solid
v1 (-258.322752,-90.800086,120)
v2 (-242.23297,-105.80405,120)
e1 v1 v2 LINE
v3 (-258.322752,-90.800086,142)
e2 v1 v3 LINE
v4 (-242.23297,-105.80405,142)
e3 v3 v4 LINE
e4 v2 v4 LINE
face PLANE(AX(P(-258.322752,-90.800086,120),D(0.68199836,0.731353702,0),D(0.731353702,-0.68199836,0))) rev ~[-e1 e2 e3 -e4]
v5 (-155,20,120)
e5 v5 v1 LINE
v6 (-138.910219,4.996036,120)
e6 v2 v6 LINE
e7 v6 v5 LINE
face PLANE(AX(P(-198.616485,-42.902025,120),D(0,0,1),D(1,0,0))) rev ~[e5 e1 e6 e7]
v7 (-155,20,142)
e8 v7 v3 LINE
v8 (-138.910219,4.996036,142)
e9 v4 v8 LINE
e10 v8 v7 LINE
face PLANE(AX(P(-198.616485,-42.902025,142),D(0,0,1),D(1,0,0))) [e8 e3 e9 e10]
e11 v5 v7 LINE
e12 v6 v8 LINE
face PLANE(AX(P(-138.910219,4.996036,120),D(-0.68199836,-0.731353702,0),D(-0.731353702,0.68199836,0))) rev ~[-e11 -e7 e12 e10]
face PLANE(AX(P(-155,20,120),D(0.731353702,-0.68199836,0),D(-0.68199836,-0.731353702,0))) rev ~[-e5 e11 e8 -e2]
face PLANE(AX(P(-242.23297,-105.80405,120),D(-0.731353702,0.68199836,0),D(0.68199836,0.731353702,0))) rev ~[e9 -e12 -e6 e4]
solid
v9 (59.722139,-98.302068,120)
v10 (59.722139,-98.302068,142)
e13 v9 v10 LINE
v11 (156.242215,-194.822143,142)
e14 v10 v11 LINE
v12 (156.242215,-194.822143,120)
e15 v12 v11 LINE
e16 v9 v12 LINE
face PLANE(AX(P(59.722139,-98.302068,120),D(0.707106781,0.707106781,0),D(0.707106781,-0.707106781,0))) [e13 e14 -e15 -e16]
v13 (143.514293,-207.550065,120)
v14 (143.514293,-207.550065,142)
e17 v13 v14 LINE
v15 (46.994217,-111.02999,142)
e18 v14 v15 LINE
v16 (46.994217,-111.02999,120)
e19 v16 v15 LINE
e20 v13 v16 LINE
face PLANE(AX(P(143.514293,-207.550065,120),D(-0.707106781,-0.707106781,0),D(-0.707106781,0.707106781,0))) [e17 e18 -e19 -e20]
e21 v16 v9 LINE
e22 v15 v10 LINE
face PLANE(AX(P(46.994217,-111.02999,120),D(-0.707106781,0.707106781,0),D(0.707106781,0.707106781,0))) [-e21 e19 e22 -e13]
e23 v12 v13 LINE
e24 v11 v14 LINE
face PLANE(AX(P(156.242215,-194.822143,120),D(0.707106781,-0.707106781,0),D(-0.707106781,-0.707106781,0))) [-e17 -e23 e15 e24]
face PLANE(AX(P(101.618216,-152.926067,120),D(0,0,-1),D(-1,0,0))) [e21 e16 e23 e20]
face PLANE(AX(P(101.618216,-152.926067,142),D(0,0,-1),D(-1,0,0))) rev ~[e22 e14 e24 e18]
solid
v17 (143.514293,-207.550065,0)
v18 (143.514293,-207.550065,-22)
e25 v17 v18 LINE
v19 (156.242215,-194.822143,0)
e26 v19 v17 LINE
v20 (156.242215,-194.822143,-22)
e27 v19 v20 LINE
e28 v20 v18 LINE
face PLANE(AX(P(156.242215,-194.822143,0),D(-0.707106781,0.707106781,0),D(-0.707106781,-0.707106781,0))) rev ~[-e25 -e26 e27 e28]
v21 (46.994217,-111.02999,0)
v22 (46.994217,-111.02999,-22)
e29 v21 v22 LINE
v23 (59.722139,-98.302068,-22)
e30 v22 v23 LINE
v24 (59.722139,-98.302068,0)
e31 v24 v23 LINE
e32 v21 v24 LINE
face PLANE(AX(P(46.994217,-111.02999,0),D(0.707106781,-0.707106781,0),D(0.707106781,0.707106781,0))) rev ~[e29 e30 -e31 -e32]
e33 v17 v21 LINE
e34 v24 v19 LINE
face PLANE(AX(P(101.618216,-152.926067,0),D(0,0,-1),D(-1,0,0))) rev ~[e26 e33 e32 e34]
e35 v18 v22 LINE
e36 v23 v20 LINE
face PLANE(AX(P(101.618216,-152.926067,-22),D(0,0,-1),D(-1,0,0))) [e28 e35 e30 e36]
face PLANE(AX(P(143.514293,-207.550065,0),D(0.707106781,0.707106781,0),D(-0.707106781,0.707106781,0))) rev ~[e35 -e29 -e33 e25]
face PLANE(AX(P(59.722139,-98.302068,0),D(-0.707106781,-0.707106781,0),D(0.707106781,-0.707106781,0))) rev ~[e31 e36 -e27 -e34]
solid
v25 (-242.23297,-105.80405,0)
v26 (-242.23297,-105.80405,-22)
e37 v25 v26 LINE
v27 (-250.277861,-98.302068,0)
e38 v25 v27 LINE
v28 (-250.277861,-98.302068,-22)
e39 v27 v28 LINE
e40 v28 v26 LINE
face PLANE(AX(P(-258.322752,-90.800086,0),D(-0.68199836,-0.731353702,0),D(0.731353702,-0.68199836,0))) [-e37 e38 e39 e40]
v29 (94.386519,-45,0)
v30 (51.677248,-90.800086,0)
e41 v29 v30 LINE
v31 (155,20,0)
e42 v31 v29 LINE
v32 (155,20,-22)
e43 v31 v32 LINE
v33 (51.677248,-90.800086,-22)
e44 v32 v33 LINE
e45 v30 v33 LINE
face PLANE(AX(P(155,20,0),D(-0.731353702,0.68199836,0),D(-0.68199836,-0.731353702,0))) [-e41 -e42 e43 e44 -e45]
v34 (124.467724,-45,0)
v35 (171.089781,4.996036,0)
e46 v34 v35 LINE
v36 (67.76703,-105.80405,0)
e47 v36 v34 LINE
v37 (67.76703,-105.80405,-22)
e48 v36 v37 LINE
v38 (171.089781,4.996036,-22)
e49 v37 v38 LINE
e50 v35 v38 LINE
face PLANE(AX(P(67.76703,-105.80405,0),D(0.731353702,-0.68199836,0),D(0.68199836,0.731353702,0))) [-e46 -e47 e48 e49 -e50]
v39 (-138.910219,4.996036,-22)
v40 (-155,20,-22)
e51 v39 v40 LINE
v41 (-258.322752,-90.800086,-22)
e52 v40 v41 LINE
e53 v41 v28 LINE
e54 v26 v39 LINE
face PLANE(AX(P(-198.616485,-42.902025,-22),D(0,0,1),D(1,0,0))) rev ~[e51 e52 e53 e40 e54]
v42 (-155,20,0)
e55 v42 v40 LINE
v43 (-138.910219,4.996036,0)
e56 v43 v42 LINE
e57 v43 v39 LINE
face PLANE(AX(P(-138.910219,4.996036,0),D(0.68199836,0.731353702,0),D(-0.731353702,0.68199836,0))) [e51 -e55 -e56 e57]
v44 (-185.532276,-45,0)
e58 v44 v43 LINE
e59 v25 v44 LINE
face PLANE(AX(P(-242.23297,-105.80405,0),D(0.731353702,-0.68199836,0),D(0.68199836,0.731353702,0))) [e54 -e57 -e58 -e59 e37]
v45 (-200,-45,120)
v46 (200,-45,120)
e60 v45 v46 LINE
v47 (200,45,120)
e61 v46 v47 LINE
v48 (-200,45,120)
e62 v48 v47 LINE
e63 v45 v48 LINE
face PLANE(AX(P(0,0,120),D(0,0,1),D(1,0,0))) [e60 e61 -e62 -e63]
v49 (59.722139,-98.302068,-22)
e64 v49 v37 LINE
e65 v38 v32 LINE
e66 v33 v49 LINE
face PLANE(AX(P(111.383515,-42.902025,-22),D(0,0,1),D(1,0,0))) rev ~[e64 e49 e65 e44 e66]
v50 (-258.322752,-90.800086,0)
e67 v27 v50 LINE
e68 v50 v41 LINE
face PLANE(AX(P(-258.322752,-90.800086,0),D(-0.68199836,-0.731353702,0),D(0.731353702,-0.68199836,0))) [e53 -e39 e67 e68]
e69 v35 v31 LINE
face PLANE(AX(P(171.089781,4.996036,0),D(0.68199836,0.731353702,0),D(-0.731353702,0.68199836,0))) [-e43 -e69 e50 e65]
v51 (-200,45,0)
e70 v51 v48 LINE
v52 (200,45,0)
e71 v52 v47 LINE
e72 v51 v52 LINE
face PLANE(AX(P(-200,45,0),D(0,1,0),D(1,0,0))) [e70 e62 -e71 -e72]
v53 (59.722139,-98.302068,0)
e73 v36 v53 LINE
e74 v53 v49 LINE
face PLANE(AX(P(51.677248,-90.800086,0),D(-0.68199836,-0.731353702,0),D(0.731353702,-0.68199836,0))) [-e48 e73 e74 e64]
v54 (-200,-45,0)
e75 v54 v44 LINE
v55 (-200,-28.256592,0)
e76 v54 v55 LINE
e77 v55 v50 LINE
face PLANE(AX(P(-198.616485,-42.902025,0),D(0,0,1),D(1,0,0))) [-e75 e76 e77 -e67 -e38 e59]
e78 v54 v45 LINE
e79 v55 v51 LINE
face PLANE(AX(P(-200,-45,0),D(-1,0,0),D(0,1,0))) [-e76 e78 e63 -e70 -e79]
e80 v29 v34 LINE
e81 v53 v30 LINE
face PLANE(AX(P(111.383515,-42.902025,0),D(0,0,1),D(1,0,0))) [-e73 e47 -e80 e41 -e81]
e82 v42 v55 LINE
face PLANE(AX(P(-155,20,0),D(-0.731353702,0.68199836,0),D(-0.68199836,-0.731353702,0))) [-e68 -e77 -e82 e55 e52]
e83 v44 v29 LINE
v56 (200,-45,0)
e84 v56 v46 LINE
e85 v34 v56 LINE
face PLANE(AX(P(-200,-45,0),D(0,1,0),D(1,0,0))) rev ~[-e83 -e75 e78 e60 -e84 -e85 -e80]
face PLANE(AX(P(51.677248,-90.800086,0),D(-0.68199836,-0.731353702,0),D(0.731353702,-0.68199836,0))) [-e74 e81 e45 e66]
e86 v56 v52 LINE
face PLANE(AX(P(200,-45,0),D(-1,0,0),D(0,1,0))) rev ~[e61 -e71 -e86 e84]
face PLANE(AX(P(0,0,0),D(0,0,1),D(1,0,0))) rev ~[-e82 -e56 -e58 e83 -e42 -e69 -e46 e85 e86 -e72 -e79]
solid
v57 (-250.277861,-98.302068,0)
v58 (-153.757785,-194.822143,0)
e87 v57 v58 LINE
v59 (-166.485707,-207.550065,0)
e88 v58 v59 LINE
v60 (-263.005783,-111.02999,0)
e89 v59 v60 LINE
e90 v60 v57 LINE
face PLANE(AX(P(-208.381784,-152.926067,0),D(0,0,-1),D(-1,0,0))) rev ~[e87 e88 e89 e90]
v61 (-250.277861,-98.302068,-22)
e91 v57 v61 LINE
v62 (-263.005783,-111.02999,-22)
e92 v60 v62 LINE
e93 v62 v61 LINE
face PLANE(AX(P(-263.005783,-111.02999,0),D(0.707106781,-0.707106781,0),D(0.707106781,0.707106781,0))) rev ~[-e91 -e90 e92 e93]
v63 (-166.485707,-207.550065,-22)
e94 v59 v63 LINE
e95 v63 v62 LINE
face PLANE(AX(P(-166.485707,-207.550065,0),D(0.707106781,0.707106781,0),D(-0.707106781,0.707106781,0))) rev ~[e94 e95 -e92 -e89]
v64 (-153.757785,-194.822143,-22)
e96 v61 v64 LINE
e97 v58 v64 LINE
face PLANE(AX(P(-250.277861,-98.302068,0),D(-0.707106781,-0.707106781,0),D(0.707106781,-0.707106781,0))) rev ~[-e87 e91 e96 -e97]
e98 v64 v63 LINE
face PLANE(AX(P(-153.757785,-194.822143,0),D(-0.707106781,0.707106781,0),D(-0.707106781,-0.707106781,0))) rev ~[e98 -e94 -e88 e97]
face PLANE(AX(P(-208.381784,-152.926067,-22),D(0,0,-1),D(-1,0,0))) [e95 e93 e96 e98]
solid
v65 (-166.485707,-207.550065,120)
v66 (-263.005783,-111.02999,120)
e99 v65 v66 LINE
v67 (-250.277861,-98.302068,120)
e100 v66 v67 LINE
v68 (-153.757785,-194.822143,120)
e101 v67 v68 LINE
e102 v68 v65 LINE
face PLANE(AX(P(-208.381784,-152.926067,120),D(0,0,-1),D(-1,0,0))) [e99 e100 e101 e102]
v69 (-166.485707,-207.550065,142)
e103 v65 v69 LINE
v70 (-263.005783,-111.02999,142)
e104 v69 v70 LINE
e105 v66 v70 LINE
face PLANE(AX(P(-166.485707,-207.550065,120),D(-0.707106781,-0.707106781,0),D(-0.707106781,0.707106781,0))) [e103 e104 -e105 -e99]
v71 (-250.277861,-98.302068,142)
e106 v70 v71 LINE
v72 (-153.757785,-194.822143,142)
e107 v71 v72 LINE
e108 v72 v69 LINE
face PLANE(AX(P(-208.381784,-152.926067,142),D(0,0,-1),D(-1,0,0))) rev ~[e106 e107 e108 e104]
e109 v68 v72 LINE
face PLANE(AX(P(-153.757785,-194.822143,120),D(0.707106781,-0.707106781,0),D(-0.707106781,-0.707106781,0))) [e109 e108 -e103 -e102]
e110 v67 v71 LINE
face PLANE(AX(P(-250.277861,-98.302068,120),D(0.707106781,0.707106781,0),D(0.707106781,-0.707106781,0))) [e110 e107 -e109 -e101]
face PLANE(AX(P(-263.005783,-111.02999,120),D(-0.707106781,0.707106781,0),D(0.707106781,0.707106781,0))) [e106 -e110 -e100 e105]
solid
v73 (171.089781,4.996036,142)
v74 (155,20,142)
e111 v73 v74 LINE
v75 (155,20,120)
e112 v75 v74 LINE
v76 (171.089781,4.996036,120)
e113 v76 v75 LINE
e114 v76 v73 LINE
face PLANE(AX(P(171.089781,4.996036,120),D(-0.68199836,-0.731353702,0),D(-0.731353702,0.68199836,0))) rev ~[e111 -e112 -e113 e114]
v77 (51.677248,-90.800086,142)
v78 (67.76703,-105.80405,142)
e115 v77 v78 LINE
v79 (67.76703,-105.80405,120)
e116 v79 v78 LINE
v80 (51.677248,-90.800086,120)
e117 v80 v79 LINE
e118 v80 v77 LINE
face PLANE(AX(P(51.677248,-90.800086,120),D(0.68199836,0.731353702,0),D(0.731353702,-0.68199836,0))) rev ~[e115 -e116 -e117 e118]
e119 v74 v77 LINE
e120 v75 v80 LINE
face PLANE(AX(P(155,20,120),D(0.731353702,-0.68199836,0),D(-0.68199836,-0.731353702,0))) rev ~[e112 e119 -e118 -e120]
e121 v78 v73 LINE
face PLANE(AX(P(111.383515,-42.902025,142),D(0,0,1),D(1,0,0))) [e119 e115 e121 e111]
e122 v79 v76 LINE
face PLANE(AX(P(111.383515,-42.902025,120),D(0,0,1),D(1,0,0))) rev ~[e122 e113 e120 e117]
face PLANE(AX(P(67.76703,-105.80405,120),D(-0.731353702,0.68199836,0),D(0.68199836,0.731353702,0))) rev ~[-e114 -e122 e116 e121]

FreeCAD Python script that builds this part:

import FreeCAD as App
import Part
import Sketcher
from FreeCAD import Vector
Q = App.Units.Quantity


def add_polygon(sketch, points):
    """Adds a closed chain of lines whose ends are joined by coincident constraints."""
    first, n = sketch.GeometryCount, len(points)
    for a, b in zip(points, points[1:] + points[:1]):
        sketch.addGeometry(Part.LineSegment(App.Vector(*a, 0), App.Vector(*b, 0)), False)
    for i in range(n):
        sketch.addConstraint(Sketcher.Constraint("Coincident", first + i, 2, first + (i + 1) % n, 1))

doc = App.newDocument("Part")
params = doc.addObject("Spreadsheet::Sheet", "Params")
for row, (alias, value) in enumerate([
    ("sketch1_width", "400 mm"),
    ("sketch1_height", "90 mm"),
    ("pad1_length", "120 mm"),
    ("sketch2_length", "11 mm"),
    ("sketch2_length2", "18 mm"),
    ("sketch2_length3", "151.5 mm"),
    ("sketch2_length4", "136.5 mm"),
    ("pad2_length", "22 mm"),
    ("sketch3_length", "22 mm"),
    ("sketch3_length2", "151.5 mm"),
    ("pad3_length", "22 mm"),
    ("sketch4_length", "22 mm"),
    ("sketch4_length2", "151.5 mm"),
    ("pad4_length", "22 mm"),
    ("sketch5_length", "18 mm"),
    ("sketch5_length2", "136.5 mm"),
    ("pad5_length", "22 mm"),
    ("sketch6_length", "18 mm"),
    ("sketch6_length2", "136.5 mm"),
    ("pad6_length", "22 mm"),
], start=1):
    params.set(f"A{row}", alias)
    params.set(f"B{row}", "=" + value)
    params.setAlias(f"B{row}", alias)

body = doc.addObject("PartDesign::Body", "Body")
body.AllowCompound = True

# Sketch on XY plane
sketch1 = body.newObject("Sketcher::SketchObject", "Sketch")
sketch1.AttachmentSupport = (doc.getObject("XY_Plane"), [""])
sketch1.MapMode = "FlatFace"
add_polygon(sketch1, [(-200, 45), (-200, -45), (200, -45), (200, 45)])  # lines 0-3
sketch1.addConstraint([
    Sketcher.Constraint("Vertical", 0),
    Sketcher.Constraint("Horizontal", 1),
    Sketcher.Constraint("Vertical", 2),
    Sketcher.Constraint("Horizontal", 3),
    Sketcher.Constraint("Symmetric", 0, 2, 2, 2, -1, 1),
    Sketcher.Constraint("DistanceX", 1, 1, 1, 2, Q("400 mm")),
    Sketcher.Constraint("DistanceY", 0, 2, 0, 1, Q("90 mm")),
])
sketch1.setExpression("Constraints[9]", "Params.sketch1_width")
sketch1.setExpression("Constraints[10]", "Params.sketch1_height")
pad1 = body.newObject("PartDesign::Pad", "Pad")
pad1.Profile = sketch1
pad1.setExpression("Length", "Params.pad1_length")

# Sketch on XY plane
sketch2 = body.newObject("Sketcher::SketchObject", "Sketch001")
sketch2.AttachmentSupport = (doc.getObject("XY_Plane"), [""])
sketch2.MapMode = "FlatFace"
add_polygon(sketch2, [(-155, 20), (-258, -91), (-250, -98), (-242, -106), (-139, 5)])  # lines 0-4
add_polygon(sketch2, [(155, 20), (52, -91), (60, -98), (68, -106), (171, 5)])  # lines 5-9
add_polygon(sketch2, [(-154, -195), (-250, -98), (-263, -111), (-166, -208)])  # lines 10-13
add_polygon(sketch2, [(156, -195), (60, -98), (47, -111), (144, -208)])  # lines 14-17
sketch2.addConstraint([
    Sketcher.Constraint("Coincident", 10, 2, 1, 2),
    Sketcher.Constraint("Coincident", 14, 2, 6, 2),
    Sketcher.Constraint("Symmetric", 4, 2, 9, 2, -2),
    Sketcher.Constraint("Perpendicular", 0, 1),
    Sketcher.Constraint("Parallel", 1, 2),
    Sketcher.Constraint("Perpendicular", 2, 3),
    Sketcher.Constraint("Perpendicular", 3, 4),
    Sketcher.Constraint("Perpendicular", 4, 5),
    Sketcher.Constraint("Perpendicular", 5, 6),
    Sketcher.Constraint("Parallel", 6, 7),
    Sketcher.Constraint("Perpendicular", 7, 8),
    Sketcher.Constraint("Perpendicular", 8, 9),
    Sketcher.Constraint("Perpendicular", 10, 11),
    Sketcher.Constraint("Perpendicular", 11, 12),
    Sketcher.Constraint("Perpendicular", 12, 13),
    Sketcher.Constraint("Perpendicular", 13, 14),
    Sketcher.Constraint("Perpendicular", 14, 15),
    Sketcher.Constraint("Perpendicular", 15, 16),
    Sketcher.Constraint("Perpendicular", 16, 17),
    Sketcher.Constraint("Horizontal", 0, 2, 5, 2),
    Sketcher.Constraint("Horizontal", 1, 2, 6, 2),
    Sketcher.Constraint("Horizontal", 2, 2, 7, 2),
    Sketcher.Constraint("Horizontal", 11, 2, 15, 2),
    Sketcher.Constraint("Horizontal", 12, 2, 16, 2),
    Sketcher.Constraint("Equal", 1, 2),
    Sketcher.Constraint("Angle", 0, Q("-133 deg")),
    Sketcher.Constraint("Angle", 10, Q("135 deg")),
    Sketcher.Constraint("Distance", 1, Q("11 mm")),
    Sketcher.Constraint("Distance", 11, Q("18 mm")),
    Sketcher.Constraint("DistanceX", 4, 2, -1, 1, Q("155 mm")),
    Sketcher.Constraint("DistanceY", -1, 1, 4, 2, Q("20 mm")),
    Sketcher.Constraint("Distance", 0, Q("151.5 mm")),
    Sketcher.Constraint("Distance", 10, Q("136.5 mm")),
])
sketch2.setExpression("Constraints[45]", "Params.sketch2_length")
sketch2.setExpression("Constraints[46]", "Params.sketch2_length2")
sketch2.setExpression("Constraints[49]", "Params.sketch2_length3")
sketch2.setExpression("Constraints[50]", "Params.sketch2_length4")
pad2 = body.newObject("PartDesign::Pad", "Pad001")
pad2.Profile = sketch2
pad2.setExpression("Length", "Params.pad2_length")
pad2.Reversed = True
body2 = doc.addObject("PartDesign::Body", "Body001")

# Sketch on XY plane
sketch3 = body2.newObject("Sketcher::SketchObject", "Sketch002")
sketch3.AttachmentSupport = (doc.getObject("XY_Plane001"), [""])
sketch3.MapMode = "FlatFace"
sketch3.AttachmentOffset = App.Placement(Vector(0, 0, 120), App.Rotation())
add_polygon(sketch3, [(-155, 20), (-258, -91), (-242, -106), (-139, 5)])  # lines 0-3
sketch3.addConstraint([
    Sketcher.Constraint("Perpendicular", 0, 1),
    Sketcher.Constraint("Perpendicular", 1, 2),
    Sketcher.Constraint("Perpendicular", 2, 3),
    Sketcher.Constraint("Angle", 0, Q("-133 deg")),
    Sketcher.Constraint("Distance", 1, Q("22 mm")),
    Sketcher.Constraint("DistanceX", 3, 2, -1, 1, Q("155 mm")),
    Sketcher.Constraint("DistanceY", -1, 1, 3, 2, Q("20 mm")),
    Sketcher.Constraint("Distance", 0, Q("151.5 mm")),
])
sketch3.setExpression("Constraints[8]", "Params.sketch3_length")
sketch3.setExpression("Constraints[11]", "Params.sketch3_length2")
pad3 = body2.newObject("PartDesign::Pad", "Pad002")
pad3.Profile = sketch3
pad3.setExpression("Length", "Params.pad3_length")
body3 = doc.addObject("PartDesign::Body", "Body002")

# Sketch on XY plane
sketch4 = body3.newObject("Sketcher::SketchObject", "Sketch003")
sketch4.AttachmentSupport = (doc.getObject("XY_Plane002"), [""])
sketch4.MapMode = "FlatFace"
sketch4.AttachmentOffset = App.Placement(Vector(0, 0, 120), App.Rotation())
add_polygon(sketch4, [(155, 20), (52, -91), (68, -106), (171, 5)])  # lines 0-3
sketch4.addConstraint([
    Sketcher.Constraint("Perpendicular", 0, 1),
    Sketcher.Constraint("Perpendicular", 1, 2),
    Sketcher.Constraint("Perpendicular", 2, 3),
    Sketcher.Constraint("Angle", 0, Q("-133 deg")),
    Sketcher.Constraint("Distance", 1, Q("22 mm")),
    Sketcher.Constraint("DistanceX", -1, 1, 3, 2, Q("155 mm")),
    Sketcher.Constraint("DistanceY", -1, 1, 3, 2, Q("20 mm")),
    Sketcher.Constraint("Distance", 0, Q("151.5 mm")),
])
sketch4.setExpression("Constraints[8]", "Params.sketch4_length")
sketch4.setExpression("Constraints[11]", "Params.sketch4_length2")
pad4 = body3.newObject("PartDesign::Pad", "Pad003")
pad4.Profile = sketch4
pad4.setExpression("Length", "Params.pad4_length")
body4 = doc.addObject("PartDesign::Body", "Body003")

# Sketch on XY plane
sketch5 = body4.newObject("Sketcher::SketchObject", "Sketch004")
sketch5.AttachmentSupport = (doc.getObject("XY_Plane003"), [""])
sketch5.MapMode = "FlatFace"
sketch5.AttachmentOffset = App.Placement(Vector(0, 0, 120), App.Rotation())
add_polygon(sketch5, [(-154, -195), (-250, -98), (-263, -111), (-166, -208)])  # lines 0-3
sketch5.addConstraint([
    Sketcher.Constraint("Perpendicular", 0, 1),
    Sketcher.Constraint("Perpendicular", 1, 2),
    Sketcher.Constraint("Perpendicular", 2, 3),
    Sketcher.Constraint("Angle", 0, Q("135 deg")),
    Sketcher.Constraint("Distance", 1, Q("18 mm")),
    Sketcher.Constraint("Distance", 0, Q("136.5 mm")),
    Sketcher.Constraint("DistanceX", 0, 2, -1, 1, Q("250.277861 mm")),
    Sketcher.Constraint("DistanceY", 1, 2, -1, 1, Q("111.02999 mm")),
])
sketch5.setExpression("Constraints[8]", "Params.sketch5_length")
sketch5.setExpression("Constraints[9]", "Params.sketch5_length2")
pad5 = body4.newObject("PartDesign::Pad", "Pad004")
pad5.Profile = sketch5
pad5.setExpression("Length", "Params.pad5_length")
body5 = doc.addObject("PartDesign::Body", "Body004")

# Sketch on XY plane
sketch6 = body5.newObject("Sketcher::SketchObject", "Sketch005")
sketch6.AttachmentSupport = (doc.getObject("XY_Plane004"), [""])
sketch6.MapMode = "FlatFace"
sketch6.AttachmentOffset = App.Placement(Vector(0, 0, 120), App.Rotation())
add_polygon(sketch6, [(156, -195), (60, -98), (47, -111), (144, -208)])  # lines 0-3
sketch6.addConstraint([
    Sketcher.Constraint("Perpendicular", 0, 1),
    Sketcher.Constraint("Perpendicular", 1, 2),
    Sketcher.Constraint("Perpendicular", 2, 3),
    Sketcher.Constraint("Angle", 0, Q("135 deg")),
    Sketcher.Constraint("Distance", 1, Q("18 mm")),
    Sketcher.Constraint("Distance", 0, Q("136.5 mm")),
    Sketcher.Constraint("DistanceX", -1, 1, 0, 2, Q("59.722139 mm")),
    Sketcher.Constraint("DistanceY", 1, 2, -1, 1, Q("111.02999 mm")),
])
sketch6.setExpression("Constraints[8]", "Params.sketch6_length")
sketch6.setExpression("Constraints[9]", "Params.sketch6_length2")
pad6 = body5.newObject("PartDesign::Pad", "Pad005")
pad6.Profile = sketch6
pad6.setExpression("Length", "Params.pad6_length")

doc.recompute()
